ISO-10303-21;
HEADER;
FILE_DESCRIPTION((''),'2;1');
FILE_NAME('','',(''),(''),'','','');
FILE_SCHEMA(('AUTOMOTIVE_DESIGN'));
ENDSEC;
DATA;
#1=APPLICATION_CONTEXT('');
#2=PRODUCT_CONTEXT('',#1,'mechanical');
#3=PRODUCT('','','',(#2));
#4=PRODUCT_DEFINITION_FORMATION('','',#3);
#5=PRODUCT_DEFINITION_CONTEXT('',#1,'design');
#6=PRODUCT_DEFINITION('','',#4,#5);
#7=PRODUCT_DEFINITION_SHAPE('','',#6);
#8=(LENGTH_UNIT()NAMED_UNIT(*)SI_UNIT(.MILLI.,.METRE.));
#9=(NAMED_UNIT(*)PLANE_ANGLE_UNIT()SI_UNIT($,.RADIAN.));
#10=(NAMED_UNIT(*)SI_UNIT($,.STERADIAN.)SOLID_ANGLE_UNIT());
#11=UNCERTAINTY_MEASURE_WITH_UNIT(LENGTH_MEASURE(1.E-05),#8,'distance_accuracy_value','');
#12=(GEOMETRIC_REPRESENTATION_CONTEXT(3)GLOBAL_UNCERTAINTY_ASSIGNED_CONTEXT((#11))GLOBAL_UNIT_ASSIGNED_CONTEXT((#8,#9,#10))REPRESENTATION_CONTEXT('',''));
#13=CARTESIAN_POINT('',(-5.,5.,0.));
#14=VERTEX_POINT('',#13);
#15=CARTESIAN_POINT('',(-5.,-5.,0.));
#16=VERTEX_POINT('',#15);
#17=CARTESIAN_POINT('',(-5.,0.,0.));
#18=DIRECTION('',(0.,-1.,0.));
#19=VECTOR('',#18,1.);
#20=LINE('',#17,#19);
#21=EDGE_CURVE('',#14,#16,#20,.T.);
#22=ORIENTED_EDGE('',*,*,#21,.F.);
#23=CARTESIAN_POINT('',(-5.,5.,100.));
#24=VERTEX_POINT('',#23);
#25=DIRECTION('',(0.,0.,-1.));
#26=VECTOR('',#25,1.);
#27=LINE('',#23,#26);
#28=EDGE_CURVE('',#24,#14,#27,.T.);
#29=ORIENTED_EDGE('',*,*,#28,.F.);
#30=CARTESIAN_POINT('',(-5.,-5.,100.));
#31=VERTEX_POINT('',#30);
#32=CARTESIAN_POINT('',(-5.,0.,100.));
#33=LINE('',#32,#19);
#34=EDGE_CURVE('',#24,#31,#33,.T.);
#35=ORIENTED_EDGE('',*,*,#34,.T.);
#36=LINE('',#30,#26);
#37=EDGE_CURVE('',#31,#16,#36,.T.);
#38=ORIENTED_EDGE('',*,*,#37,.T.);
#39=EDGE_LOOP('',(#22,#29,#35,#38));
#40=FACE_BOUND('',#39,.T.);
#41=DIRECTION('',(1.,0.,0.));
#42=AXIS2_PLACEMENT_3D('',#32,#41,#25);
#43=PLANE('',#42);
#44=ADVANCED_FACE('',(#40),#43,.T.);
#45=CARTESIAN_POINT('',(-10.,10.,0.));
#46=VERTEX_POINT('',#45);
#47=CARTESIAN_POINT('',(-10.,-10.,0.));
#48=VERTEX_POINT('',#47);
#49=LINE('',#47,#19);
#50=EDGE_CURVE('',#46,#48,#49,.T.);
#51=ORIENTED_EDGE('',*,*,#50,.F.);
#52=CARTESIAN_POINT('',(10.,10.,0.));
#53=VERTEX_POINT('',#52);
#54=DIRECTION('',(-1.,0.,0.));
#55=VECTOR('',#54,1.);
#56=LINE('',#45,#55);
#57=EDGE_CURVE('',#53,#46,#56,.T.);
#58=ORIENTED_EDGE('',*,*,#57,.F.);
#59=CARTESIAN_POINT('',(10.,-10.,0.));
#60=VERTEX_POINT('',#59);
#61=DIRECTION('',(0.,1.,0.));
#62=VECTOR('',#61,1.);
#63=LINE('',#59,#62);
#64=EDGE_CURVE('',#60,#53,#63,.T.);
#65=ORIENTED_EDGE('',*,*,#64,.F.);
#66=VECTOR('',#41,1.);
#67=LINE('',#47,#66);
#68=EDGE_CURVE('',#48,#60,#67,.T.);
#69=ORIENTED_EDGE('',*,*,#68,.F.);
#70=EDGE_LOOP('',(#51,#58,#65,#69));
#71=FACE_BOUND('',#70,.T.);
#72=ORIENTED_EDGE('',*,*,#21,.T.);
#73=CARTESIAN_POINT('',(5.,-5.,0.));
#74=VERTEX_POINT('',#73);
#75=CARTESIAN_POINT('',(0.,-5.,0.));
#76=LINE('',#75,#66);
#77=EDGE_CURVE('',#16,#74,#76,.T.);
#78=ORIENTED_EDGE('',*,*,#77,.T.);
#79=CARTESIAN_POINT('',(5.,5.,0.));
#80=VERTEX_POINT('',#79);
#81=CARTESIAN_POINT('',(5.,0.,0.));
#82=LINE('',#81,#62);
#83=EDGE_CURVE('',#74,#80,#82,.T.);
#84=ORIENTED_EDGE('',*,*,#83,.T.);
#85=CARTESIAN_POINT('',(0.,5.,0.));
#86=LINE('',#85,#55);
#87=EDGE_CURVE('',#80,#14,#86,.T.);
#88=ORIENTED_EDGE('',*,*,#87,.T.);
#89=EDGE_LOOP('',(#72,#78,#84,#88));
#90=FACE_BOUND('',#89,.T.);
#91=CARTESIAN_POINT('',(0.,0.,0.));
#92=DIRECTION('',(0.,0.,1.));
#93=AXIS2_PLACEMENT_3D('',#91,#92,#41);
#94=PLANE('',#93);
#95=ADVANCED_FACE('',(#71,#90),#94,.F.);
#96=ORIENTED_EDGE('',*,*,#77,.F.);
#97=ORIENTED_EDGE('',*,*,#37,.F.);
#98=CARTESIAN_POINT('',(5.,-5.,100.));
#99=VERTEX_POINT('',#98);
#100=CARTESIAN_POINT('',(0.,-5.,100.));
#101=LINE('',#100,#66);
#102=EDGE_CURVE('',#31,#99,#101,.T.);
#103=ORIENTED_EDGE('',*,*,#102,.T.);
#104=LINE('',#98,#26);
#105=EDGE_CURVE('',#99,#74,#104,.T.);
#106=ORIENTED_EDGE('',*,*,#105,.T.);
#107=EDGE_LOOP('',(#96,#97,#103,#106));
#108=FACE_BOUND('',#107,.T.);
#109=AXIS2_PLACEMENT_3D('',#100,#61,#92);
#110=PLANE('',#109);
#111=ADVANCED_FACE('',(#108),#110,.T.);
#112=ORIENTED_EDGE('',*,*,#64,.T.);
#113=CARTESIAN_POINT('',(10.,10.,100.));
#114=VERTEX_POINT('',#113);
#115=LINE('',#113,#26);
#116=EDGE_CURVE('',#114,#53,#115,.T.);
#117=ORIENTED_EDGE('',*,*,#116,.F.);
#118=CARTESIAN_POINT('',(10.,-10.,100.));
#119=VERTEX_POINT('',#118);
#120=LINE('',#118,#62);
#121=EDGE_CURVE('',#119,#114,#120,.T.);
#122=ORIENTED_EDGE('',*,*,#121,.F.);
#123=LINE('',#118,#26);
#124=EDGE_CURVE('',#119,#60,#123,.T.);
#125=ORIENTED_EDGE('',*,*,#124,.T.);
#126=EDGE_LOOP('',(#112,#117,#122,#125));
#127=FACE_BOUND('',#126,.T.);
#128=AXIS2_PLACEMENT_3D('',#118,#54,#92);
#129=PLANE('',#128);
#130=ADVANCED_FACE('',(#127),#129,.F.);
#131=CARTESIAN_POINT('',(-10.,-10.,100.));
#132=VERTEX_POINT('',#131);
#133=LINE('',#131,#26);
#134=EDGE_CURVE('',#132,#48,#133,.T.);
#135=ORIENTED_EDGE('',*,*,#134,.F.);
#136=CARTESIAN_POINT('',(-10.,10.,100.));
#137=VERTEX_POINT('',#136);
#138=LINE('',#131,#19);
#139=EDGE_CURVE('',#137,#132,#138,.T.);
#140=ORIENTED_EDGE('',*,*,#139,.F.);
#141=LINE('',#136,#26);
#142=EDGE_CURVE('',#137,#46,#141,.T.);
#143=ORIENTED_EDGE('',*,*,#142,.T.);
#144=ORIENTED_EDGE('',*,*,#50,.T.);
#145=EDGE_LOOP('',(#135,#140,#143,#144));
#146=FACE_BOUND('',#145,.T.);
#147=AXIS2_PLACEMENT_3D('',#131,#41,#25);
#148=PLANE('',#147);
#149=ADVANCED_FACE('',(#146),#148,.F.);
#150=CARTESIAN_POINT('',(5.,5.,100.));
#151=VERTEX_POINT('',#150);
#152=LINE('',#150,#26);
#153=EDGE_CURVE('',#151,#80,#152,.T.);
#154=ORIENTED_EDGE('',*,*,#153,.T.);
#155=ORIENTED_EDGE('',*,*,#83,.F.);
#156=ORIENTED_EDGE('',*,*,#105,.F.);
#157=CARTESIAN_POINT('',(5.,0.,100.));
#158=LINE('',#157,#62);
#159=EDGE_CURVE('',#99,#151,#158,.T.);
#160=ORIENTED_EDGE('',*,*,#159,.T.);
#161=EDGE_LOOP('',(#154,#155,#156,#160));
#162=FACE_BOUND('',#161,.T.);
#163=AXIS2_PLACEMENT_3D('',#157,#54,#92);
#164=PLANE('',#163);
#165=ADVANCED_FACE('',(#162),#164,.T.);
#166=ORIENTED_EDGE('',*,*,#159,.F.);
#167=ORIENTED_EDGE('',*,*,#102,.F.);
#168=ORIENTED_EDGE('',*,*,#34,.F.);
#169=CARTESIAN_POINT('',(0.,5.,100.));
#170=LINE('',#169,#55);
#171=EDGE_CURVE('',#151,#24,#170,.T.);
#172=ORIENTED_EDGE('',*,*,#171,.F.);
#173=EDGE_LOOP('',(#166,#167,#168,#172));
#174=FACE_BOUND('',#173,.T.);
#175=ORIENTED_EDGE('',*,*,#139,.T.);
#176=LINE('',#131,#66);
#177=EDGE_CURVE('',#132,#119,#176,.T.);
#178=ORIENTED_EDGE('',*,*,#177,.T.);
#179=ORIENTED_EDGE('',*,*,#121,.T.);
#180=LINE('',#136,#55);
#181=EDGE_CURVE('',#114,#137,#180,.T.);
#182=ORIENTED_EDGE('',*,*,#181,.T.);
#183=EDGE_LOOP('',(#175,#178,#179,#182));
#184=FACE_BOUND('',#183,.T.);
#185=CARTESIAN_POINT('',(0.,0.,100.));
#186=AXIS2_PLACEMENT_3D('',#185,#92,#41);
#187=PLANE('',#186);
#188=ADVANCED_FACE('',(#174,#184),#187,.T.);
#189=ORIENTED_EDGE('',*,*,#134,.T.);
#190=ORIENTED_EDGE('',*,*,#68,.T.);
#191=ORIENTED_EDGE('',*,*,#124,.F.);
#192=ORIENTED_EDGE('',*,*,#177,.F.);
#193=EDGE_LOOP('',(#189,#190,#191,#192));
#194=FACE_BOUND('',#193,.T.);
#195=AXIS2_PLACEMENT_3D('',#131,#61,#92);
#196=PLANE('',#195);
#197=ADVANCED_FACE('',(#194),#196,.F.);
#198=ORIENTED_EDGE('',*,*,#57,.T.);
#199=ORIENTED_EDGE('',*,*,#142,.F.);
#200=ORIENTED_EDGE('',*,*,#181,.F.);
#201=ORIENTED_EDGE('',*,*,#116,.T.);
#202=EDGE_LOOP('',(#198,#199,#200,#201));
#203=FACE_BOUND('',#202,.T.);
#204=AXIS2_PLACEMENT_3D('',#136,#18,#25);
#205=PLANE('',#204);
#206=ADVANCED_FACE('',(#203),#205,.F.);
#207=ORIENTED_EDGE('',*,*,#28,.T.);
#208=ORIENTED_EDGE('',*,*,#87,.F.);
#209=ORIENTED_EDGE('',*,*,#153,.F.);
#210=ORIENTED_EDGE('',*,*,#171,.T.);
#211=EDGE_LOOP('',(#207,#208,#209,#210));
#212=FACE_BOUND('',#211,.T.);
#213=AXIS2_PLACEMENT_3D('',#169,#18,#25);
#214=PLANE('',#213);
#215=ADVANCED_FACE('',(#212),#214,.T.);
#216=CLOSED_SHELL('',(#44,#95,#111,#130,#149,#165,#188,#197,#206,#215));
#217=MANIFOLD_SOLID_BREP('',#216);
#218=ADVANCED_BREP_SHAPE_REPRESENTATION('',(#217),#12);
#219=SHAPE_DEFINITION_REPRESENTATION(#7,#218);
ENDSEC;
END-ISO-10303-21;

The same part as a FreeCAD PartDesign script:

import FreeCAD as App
import Part
import Sketcher

V = App.Vector
Q = App.Units.Quantity

doc = App.newDocument("Part")
body = doc.addObject("PartDesign::Body", "Body")

# Sketch on XY plane
sketch1 = body.newObject("Sketcher::SketchObject", "Sketch")
sketch1.AttachmentSupport = (doc.getObject("XY_Plane"), [""])
sketch1.MapMode = "FlatFace"
sketch1.addGeometry([
    Part.LineSegment(V(-10, 10, 0), V(-10, -10, 0)),  # 0
    Part.LineSegment(V(-10, -10, 0), V(10, -10, 0)),  # 1
    Part.LineSegment(V(10, -10, 0), V(10, 10, 0)),  # 2
    Part.LineSegment(V(10, 10, 0), V(-10, 10, 0)),  # 3
    Part.LineSegment(V(5, -5, 0), V(-5, -5, 0)),  # 4
    Part.LineSegment(V(-5, -5, 0), V(-5, 5, 0)),  # 5
    Part.LineSegment(V(-5, 5, 0), V(5, 5, 0)),  # 6
    Part.LineSegment(V(5, 5, 0), V(5, -5, 0)),  # 7
], False)
sketch1.addConstraint([
    Sketcher.Constraint("Coincident", 0, 2, 1, 1),
    Sketcher.Constraint("Coincident", 1, 2, 2, 1),
    Sketcher.Constraint("Coincident", 2, 2, 3, 1),
    Sketcher.Constraint("Coincident", 3, 2, 0, 1),
    Sketcher.Constraint("Coincident", 4, 2, 5, 1),
    Sketcher.Constraint("Coincident", 5, 2, 6, 1),
    Sketcher.Constraint("Coincident", 6, 2, 7, 1),
    Sketcher.Constraint("Coincident", 7, 2, 4, 1),
    Sketcher.Constraint("Vertical", 0),
    Sketcher.Constraint("Horizontal", 1),
    Sketcher.Constraint("Vertical", 2),
    Sketcher.Constraint("Horizontal", 3),
    Sketcher.Constraint("Horizontal", 4),
    Sketcher.Constraint("Vertical", 5),
    Sketcher.Constraint("Horizontal", 6),
    Sketcher.Constraint("Vertical", 7),
    Sketcher.Constraint("Symmetric", 0, 2, 2, 2, -1, 1),
    Sketcher.Constraint("Symmetric", 4, 2, 6, 2, -1, 1),
    Sketcher.Constraint("Equal", 3, 0),
    Sketcher.Constraint("Equal", 6, 5),
    Sketcher.Constraint("DistanceX", 1, 1, 1, 2, Q("20 mm")),
    Sketcher.Constraint("DistanceX", 4, 2, 4, 1, Q("10 mm")),
])
pad1 = body.newObject("PartDesign::Pad", "Pad")
pad1.Profile = sketch1
pad1.Length = 100

doc.recompute()
